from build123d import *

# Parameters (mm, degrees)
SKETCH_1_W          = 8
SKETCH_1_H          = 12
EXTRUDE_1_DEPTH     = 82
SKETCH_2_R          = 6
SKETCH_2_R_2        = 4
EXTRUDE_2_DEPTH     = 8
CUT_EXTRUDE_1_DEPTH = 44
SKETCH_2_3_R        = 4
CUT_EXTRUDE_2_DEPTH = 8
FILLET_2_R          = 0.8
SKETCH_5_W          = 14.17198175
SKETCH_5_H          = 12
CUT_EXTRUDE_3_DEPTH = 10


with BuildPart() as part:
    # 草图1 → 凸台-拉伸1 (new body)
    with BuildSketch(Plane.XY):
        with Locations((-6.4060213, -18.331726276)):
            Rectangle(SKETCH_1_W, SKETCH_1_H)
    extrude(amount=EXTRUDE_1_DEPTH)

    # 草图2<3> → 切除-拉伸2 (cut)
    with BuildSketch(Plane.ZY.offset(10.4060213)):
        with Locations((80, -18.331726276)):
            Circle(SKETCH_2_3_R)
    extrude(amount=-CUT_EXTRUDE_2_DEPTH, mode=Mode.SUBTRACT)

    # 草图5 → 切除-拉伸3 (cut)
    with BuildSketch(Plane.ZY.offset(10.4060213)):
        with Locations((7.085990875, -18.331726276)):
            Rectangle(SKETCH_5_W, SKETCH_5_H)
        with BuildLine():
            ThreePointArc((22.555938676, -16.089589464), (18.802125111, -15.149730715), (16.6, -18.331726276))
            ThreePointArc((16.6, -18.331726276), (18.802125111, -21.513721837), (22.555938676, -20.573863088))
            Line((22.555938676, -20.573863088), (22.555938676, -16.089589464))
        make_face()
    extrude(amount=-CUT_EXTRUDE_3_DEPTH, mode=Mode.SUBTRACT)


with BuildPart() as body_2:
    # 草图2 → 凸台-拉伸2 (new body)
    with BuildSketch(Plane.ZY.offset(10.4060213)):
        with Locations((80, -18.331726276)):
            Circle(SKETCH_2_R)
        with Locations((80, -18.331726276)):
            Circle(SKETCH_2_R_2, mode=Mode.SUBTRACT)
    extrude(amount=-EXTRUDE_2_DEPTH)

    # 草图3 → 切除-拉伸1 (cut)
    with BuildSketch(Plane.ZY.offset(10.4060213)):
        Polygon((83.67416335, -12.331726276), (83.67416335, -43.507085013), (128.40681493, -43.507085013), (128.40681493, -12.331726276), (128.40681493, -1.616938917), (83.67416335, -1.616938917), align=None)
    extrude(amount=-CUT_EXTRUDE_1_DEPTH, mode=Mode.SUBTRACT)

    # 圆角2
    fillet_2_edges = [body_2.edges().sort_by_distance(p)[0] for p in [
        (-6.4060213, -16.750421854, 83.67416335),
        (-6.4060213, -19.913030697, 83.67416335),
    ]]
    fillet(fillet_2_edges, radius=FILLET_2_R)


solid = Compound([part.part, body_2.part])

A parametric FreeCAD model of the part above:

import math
import FreeCAD as App
import Part
import Sketcher


def edges_at(feature, points):
    """Names of the edges that pass closest to the given points."""
    edges = feature.Shape.Edges
    near = lambda p: min(range(len(edges)), key=lambda i: edges[i].distToShape(Part.Vertex(*p))[0])
    return sorted({f"Edge{near(p) + 1}" for p in points})

doc = App.newDocument("Part")
body = doc.addObject("PartDesign::Body", "Body")

# Sketch on XY plane
sketch1 = doc.addObject("Sketcher::SketchObject", "Sketch")
body.addObject(sketch1)
sketch1.AttachmentSupport = (doc.XY_Plane, [""])
sketch1.MapMode = "FlatFace"
sketch1.addGeometry([
    Part.LineSegment(App.Vector(-10, -12, 0), App.Vector(-10, -24, 0)),
    Part.LineSegment(App.Vector(-10, -24, 0), App.Vector(-2, -24, 0)),
    Part.LineSegment(App.Vector(-2, -24, 0), App.Vector(-2, -12, 0)),
    Part.LineSegment(App.Vector(-2, -12, 0), App.Vector(-10, -12, 0)),
], False)
sketch1.addConstraint([
    Sketcher.Constraint("Coincident", 0, 2, 1, 1),
    Sketcher.Constraint("Coincident", 1, 2, 2, 1),
    Sketcher.Constraint("Coincident", 2, 2, 3, 1),
    Sketcher.Constraint("Coincident", 3, 2, 0, 1),
    Sketcher.Constraint("Vertical", 0),
    Sketcher.Constraint("Horizontal", 1),
    Sketcher.Constraint("Vertical", 2),
    Sketcher.Constraint("Horizontal", 3),
    Sketcher.Constraint("DistanceX", 1, 1, 1, 2, 8.0),
    Sketcher.Constraint("DistanceY", 0, 2, 0, 1, 12.0),
    Sketcher.Constraint("DistanceX", 0, 2, -1, 1, 10.406021),
    Sketcher.Constraint("DistanceY", 0, 2, -1, 1, 24.331726),
])
pad1 = doc.addObject("PartDesign::Pad", "Pad")
body.addObject(pad1)
pad1.Profile = sketch1
pad1.Length = 82

# Sketch on YZ plane
sketch2 = doc.addObject("Sketcher::SketchObject", "Sketch001")
body.addObject(sketch2)
sketch2.AttachmentSupport = (doc.YZ_Plane, [""])
sketch2.MapMode = "FlatFace"
sketch2.AttachmentOffset = App.Placement(App.Vector(0, 0, -10.406021), App.Rotation())
sketch2.addGeometry(Part.Circle(App.Vector(-18.3, 80, 0), App.Vector(0, 0, 1), 4), False)
sketch2.addConstraint([
    Sketcher.Constraint("Diameter", 0, 8.0),
    Sketcher.Constraint("DistanceY", -1, 1, 0, 3, 80.0),
    Sketcher.Constraint("DistanceX", 0, 3, -1, 1, 18.331726),
])
pocket1 = doc.addObject("PartDesign::Pocket", "Pocket")
body.addObject(pocket1)
pocket1.Profile = sketch2
pocket1.Length = 8
pocket1.Reversed = True

# Sketch on YZ plane
sketch3 = doc.addObject("Sketcher::SketchObject", "Sketch002")
body.addObject(sketch3)
sketch3.AttachmentSupport = (doc.YZ_Plane, [""])
sketch3.MapMode = "FlatFace"
sketch3.AttachmentOffset = App.Placement(App.Vector(0, 0, -10.406021), App.Rotation())
sketch3.addGeometry([
    Part.LineSegment(App.Vector(-12.3, 0, 0), App.Vector(-24.3, 0, 0)),  # 0
    Part.LineSegment(App.Vector(-24.3, 0, 0), App.Vector(-24.3, 14.2, 0)),  # 1
    Part.LineSegment(App.Vector(-24.3, 14.2, 0), App.Vector(-12.3, 14.2, 0)),  # 2
    Part.LineSegment(App.Vector(-12.3, 14.2, 0), App.Vector(-12.3, 0, 0)),  # 3
    Part.ArcOfCircle(Part.Circle(App.Vector(-18.3, 20, 0), App.Vector(0, 0, 1), 3.4), math.radians(-90), math.radians(49)),  # 4
    Part.ArcOfCircle(Part.Circle(App.Vector(-18.3, 20, 0), App.Vector(0, 0, 1), 3.4), math.radians(131), math.radians(270)),  # 5
    Part.LineSegment(App.Vector(-20.6, 22.6, 0), App.Vector(-16.1, 22.6, 0)),  # 6
], False)
sketch3.addConstraint([
    Sketcher.Constraint("Coincident", 0, 2, 1, 1),
    Sketcher.Constraint("Coincident", 1, 2, 2, 1),
    Sketcher.Constraint("Coincident", 2, 2, 3, 1),
    Sketcher.Constraint("Coincident", 3, 2, 0, 1),
    Sketcher.Constraint("Tangent", 4, 1, 5, 2),
    Sketcher.Constraint("Coincident", 5, 1, 6, 1),
    Sketcher.Constraint("Coincident", 6, 2, 4, 2),
    Sketcher.Constraint("Horizontal", 0),
    Sketcher.Constraint("Vertical", 1),
    Sketcher.Constraint("Horizontal", 2),
    Sketcher.Constraint("Vertical", 3),
    Sketcher.Constraint("Horizontal", 6),
    Sketcher.Constraint("Equal", 4, 5),
    Sketcher.Constraint("PointOnObject", 0, 2, -1),
    Sketcher.Constraint("Vertical", 5, 3, 4, 1),
    Sketcher.Constraint("Radius", 4, 3.4),
    Sketcher.Constraint("DistanceX", 0, 2, 0, 1, 12.0),
    Sketcher.Constraint("DistanceY", -1, 1, 4, 3, 20.0),
    Sketcher.Constraint("DistanceX", 0, 2, 4, 3, 6.0),
    Sketcher.Constraint("DistanceY", 1, 1, 1, 2, 14.171982),
    Sketcher.Constraint("DistanceX", 6, 1, 6, 2, 4.484274),
    Sketcher.Constraint("DistanceX", 6, 2, -1, 1, 16.089589),
])
pocket2 = doc.addObject("PartDesign::Pocket", "Pocket001")
body.addObject(pocket2)
pocket2.Profile = sketch3
pocket2.Length = 10
pocket2.Reversed = True
body2 = doc.addObject("PartDesign::Body", "Body001")

# Sketch on YZ plane
sketch4 = doc.addObject("Sketcher::SketchObject", "Sketch003")
body2.addObject(sketch4)
sketch4.AttachmentSupport = (doc.getObject("YZ_Plane001"), [""])
sketch4.MapMode = "FlatFace"
sketch4.AttachmentOffset = App.Placement(App.Vector(0, 0, -10.406021), App.Rotation())
sketch4.addGeometry([
    Part.Circle(App.Vector(-18.3, 80, 0), App.Vector(0, 0, 1), 6),
    Part.Circle(App.Vector(-18.3, 80, 0), App.Vector(0, 0, 1), 4),
], False)
sketch4.addConstraint([
    Sketcher.Constraint("Coincident", 1, 3, 0, 3),
    Sketcher.Constraint("Diameter", 0, 12.0),
    Sketcher.Constraint("Diameter", 1, 8.0),
    Sketcher.Constraint("DistanceY", -1, 1, 0, 3, 80.0),
    Sketcher.Constraint("DistanceX", 0, 3, -1, 1, 18.331726),
])
pad2 = doc.addObject("PartDesign::Pad", "Pad001")
body2.addObject(pad2)
pad2.Profile = sketch4
pad2.Length = 8

# Sketch on YZ plane
sketch5 = doc.addObject("Sketcher::SketchObject", "Sketch004")
body2.addObject(sketch5)
sketch5.AttachmentSupport = (doc.getObject("YZ_Plane001"), [""])
sketch5.MapMode = "FlatFace"
sketch5.AttachmentOffset = App.Placement(App.Vector(0, 0, -10.406021), App.Rotation())
sketch5.addGeometry([
    Part.LineSegment(App.Vector(-44, 84, 0), App.Vector(-44, 128, 0)),
    Part.LineSegment(App.Vector(-44, 128, 0), App.Vector(-2, 128, 0)),
    Part.LineSegment(App.Vector(-2, 128, 0), App.Vector(-2, 84, 0)),
    Part.LineSegment(App.Vector(-2, 84, 0), App.Vector(-44, 84, 0)),
], False)
sketch5.addConstraint([
    Sketcher.Constraint("Coincident", 0, 2, 1, 1),
    Sketcher.Constraint("Coincident", 1, 2, 2, 1),
    Sketcher.Constraint("Coincident", 2, 2, 3, 1),
    Sketcher.Constraint("Coincident", 3, 2, 0, 1),
    Sketcher.Constraint("Vertical", 0),
    Sketcher.Constraint("Horizontal", 1),
    Sketcher.Constraint("Vertical", 2),
    Sketcher.Constraint("Horizontal", 3),
    Sketcher.Constraint("DistanceY", 0, 1, 0, 2, 44.732652),
    Sketcher.Constraint("DistanceX", 1, 1, 1, 2, 41.890146),
    Sketcher.Constraint("DistanceX", 1, 2, -1, 1, 1.616939),
    Sketcher.Constraint("DistanceY", -1, 1, 0, 2, 128.406815),
])
pocket3 = doc.addObject("PartDesign::Pocket", "Pocket002")
body2.addObject(pocket3)
pocket3.Profile = sketch5
pocket3.Length = 44
pocket3.Reversed = True
doc.recompute()

fillet = doc.addObject("PartDesign::Fillet", "Fillet")
body2.addObject(fillet)
fillet.Base = (pocket3, edges_at(pocket3, [(-6.406, -16.75, 83.674), (-6.406, -19.913, 83.674)]))
fillet.Radius = 0.8

doc.recompute()
